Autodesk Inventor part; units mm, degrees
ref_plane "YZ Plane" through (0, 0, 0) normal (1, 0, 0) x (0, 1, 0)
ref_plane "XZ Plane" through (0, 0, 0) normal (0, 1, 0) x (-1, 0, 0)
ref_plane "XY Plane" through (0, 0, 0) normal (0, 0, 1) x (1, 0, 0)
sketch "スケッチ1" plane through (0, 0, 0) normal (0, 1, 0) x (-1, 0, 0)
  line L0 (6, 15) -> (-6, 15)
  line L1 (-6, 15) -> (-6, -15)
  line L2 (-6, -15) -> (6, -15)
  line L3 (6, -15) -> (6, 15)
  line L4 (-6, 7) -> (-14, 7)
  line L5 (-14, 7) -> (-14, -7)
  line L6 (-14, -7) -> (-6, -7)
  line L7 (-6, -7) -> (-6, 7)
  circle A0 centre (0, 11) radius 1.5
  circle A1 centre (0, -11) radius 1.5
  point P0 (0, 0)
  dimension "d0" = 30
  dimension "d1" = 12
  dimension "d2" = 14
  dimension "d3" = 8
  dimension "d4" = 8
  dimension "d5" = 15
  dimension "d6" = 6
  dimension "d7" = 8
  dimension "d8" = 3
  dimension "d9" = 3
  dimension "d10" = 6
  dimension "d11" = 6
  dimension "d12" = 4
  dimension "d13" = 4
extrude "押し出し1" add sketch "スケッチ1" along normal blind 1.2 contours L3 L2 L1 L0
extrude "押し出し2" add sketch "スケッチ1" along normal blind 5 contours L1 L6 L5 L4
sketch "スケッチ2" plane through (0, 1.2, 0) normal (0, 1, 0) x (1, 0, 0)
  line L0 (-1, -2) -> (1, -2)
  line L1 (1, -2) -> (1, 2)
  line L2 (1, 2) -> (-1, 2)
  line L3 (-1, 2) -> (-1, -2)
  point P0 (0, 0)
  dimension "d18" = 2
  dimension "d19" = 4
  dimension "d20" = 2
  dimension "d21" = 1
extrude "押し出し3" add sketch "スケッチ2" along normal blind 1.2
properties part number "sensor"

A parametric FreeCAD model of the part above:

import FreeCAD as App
import Part
import Sketcher
Q = App.Units.Quantity


def add_polygon(sketch, points):
    """Adds a closed chain of lines whose ends are joined by coincident constraints."""
    first, n = sketch.GeometryCount, len(points)
    for a, b in zip(points, points[1:] + points[:1]):
        sketch.addGeometry(Part.LineSegment(App.Vector(*a, 0), App.Vector(*b, 0)), False)
    for i in range(n):
        sketch.addConstraint(Sketcher.Constraint("Coincident", first + i, 2, first + (i + 1) % n, 1))

doc = App.newDocument("Part")
body = doc.addObject("PartDesign::Body", "Body")

sketch1 = doc.addObject("Sketcher::SketchObject", "Sketch")
body.addObject(sketch1)
sketch1.AttachmentSupport = (doc.XZ_Plane, [""])
sketch1.MapMode = "FlatFace"
add_polygon(sketch1, [(-6, -15), (-6, 15), (6, 15), (6, -15)])
sketch1.addGeometry(Part.Circle(App.Vector(0, -11, 0), App.Vector(0, 0, 1), 1.5), False)
sketch1.addGeometry(Part.Circle(App.Vector(0, 11, 0), App.Vector(0, 0, 1), 1.5), False)
sketch1.addConstraint(Sketcher.Constraint("Vertical", 0))
sketch1.addConstraint(Sketcher.Constraint("Horizontal", 1))
sketch1.addConstraint(Sketcher.Constraint("Vertical", 2))
sketch1.addConstraint(Sketcher.Constraint("Horizontal", 3))
sketch1.addConstraint(Sketcher.Constraint("Equal", 4, 5))
sketch1.addConstraint(Sketcher.Constraint("Symmetric", 4, 3, 5, 3, -1, 1))
sketch1.addConstraint(Sketcher.Constraint("Symmetric", 0, 2, 2, 2, -1, 1))
sketch1.addConstraint(Sketcher.Constraint("PointOnObject", 4, 3, -2))
sketch1.addConstraint(Sketcher.Constraint("Diameter", 4, Q("3 mm")))
sketch1.addConstraint(Sketcher.Constraint("DistanceX", 1, 1, 1, 2, Q("12 mm")))
sketch1.addConstraint(Sketcher.Constraint("DistanceY", 0, 1, 0, 2, Q("30 mm")))
sketch1.addConstraint(Sketcher.Constraint("DistanceY", 5, 3, 0, 2, Q("4 mm")))
pad1 = doc.addObject("PartDesign::Pad", "Pad")
body.addObject(pad1)
pad1.Profile = sketch1
pad1.Length = 1.2
pad1.Reversed = True

sketch2 = doc.addObject("Sketcher::SketchObject", "Sketch001")
body.addObject(sketch2)
sketch2.AttachmentSupport = (doc.XZ_Plane, [""])
sketch2.MapMode = "FlatFace"
add_polygon(sketch2, [(6, -7), (6, 7), (14, 7), (14, -7)])
sketch2.addConstraint(Sketcher.Constraint("Vertical", 0))
sketch2.addConstraint(Sketcher.Constraint("Horizontal", 1))
sketch2.addConstraint(Sketcher.Constraint("Vertical", 2))
sketch2.addConstraint(Sketcher.Constraint("Horizontal", 3))
sketch2.addConstraint(Sketcher.Constraint("DistanceX", 1, 1, 1, 2, Q("8 mm")))
sketch2.addConstraint(Sketcher.Constraint("DistanceY", 0, 1, 0, 2, Q("14 mm")))
sketch2.addConstraint(Sketcher.Constraint("DistanceX", -1, 1, 0, 2, Q("6 mm")))
sketch2.addConstraint(Sketcher.Constraint("DistanceY", -1, 1, 0, 2, Q("7 mm")))
pad2 = doc.addObject("PartDesign::Pad", "Pad001")
body.addObject(pad2)
pad2.Profile = sketch2
pad2.Length = 5
pad2.Reversed = True

sketch3 = doc.addObject("Sketcher::SketchObject", "Sketch002")
body.addObject(sketch3)
sketch3.AttachmentSupport = (doc.XZ_Plane, [""])
sketch3.MapMode = "FlatFace"
sketch3.AttachmentOffset = App.Placement(App.Vector(0, 0, -1.2), App.Rotation())
add_polygon(sketch3, [(-1, -2), (-1, 2), (1, 2), (1, -2)])
sketch3.addConstraint(Sketcher.Constraint("Vertical", 0))
sketch3.addConstraint(Sketcher.Constraint("Horizontal", 1))
sketch3.addConstraint(Sketcher.Constraint("Vertical", 2))
sketch3.addConstraint(Sketcher.Constraint("Horizontal", 3))
sketch3.addConstraint(Sketcher.Constraint("Symmetric", 0, 2, 2, 2, -1, 1))
sketch3.addConstraint(Sketcher.Constraint("DistanceX", 1, 1, 1, 2, Q("2 mm")))
sketch3.addConstraint(Sketcher.Constraint("DistanceY", 0, 1, 0, 2, Q("4 mm")))
pad3 = doc.addObject("PartDesign::Pad", "Pad002")
body.addObject(pad3)
pad3.Profile = sketch3
pad3.Length = 1.2
pad3.Reversed = True

doc.recompute()
